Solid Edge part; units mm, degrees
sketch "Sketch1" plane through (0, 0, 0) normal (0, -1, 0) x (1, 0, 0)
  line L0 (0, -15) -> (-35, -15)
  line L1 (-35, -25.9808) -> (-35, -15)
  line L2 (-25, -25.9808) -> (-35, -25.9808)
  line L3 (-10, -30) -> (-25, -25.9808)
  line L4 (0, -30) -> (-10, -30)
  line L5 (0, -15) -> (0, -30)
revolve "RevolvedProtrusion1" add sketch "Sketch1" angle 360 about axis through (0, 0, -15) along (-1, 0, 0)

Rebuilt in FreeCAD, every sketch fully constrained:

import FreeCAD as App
import Part
import Sketcher
from FreeCAD import Vector
Q = App.Units.Quantity


def add_polygon(sketch, points):
    """Adds a closed chain of lines whose ends are joined by coincident constraints."""
    first, n = sketch.GeometryCount, len(points)
    for a, b in zip(points, points[1:] + points[:1]):
        sketch.addGeometry(Part.LineSegment(App.Vector(*a, 0), App.Vector(*b, 0)), False)
    for i in range(n):
        sketch.addConstraint(Sketcher.Constraint("Coincident", first + i, 2, first + (i + 1) % n, 1))

doc = App.newDocument("Part")
params = doc.addObject("Spreadsheet::Sheet", "Params")
for row, (alias, value) in enumerate([
    ("sketch1_width", "35 mm"),
    ("sketch1_width2", "10 mm"),
    ("sketch1_height", "15 mm"),
    ("revolution_angle", "360 deg"),
], start=1):
    params.set(f"A{row}", alias)
    params.set(f"B{row}", "=" + value)
    params.setAlias(f"B{row}", alias)

body = doc.addObject("PartDesign::Body", "Body")

# Sketch on XZ plane
sketch1 = body.newObject("Sketcher::SketchObject", "Sketch")
sketch1.AttachmentSupport = (doc.getObject("XZ_Plane"), [""])
sketch1.MapMode = "FlatFace"
add_polygon(sketch1, [(0, -30), (0, -15), (-35, -15), (-35, -26), (-25, -26), (-10, -30)])  # lines 0-5
sketch1.addGeometry(Part.LineSegment(Vector(0, -15, 0), Vector(-35, -15, 0)), True)  # axis
sketch1.addConstraint([
    Sketcher.Constraint("Vertical", 0),
    Sketcher.Constraint("Horizontal", 1),
    Sketcher.Constraint("Vertical", 2),
    Sketcher.Constraint("Horizontal", 3),
    Sketcher.Constraint("Horizontal", 5),
    Sketcher.Constraint("Horizontal", 6),
    Sketcher.Constraint("Coincident", 6, 1, 0, 2),
    Sketcher.Constraint("PointOnObject", 0, 2, -2),
    Sketcher.Constraint("Vertical", 2, 2, 6, 2),
    Sketcher.Constraint("Equal", 3, 5),
    Sketcher.Constraint("DistanceX", 1, 2, 1, 1, 35.0),
    Sketcher.Constraint("DistanceX", 3, 1, 3, 2, 10.0),
    Sketcher.Constraint("DistanceY", 0, 1, 0, 2, 15.0),
    Sketcher.Constraint("Angle", 4, Q("-14.9999 deg")),
    Sketcher.Constraint("DistanceY", 0, 2, -1, 1, 15.0),
])
sketch1.setExpression("Constraints[16]", "Params.sketch1_width")
sketch1.setExpression("Constraints[17]", "Params.sketch1_width2")
sketch1.setExpression("Constraints[18]", "Params.sketch1_height")
revolution = body.newObject("PartDesign::Revolution", "Revolution")
revolution.Profile = sketch1
revolution.ReferenceAxis = (sketch1, ["Axis0"])
revolution.setExpression("Angle", "Params.revolution_angle")

doc.recompute()
